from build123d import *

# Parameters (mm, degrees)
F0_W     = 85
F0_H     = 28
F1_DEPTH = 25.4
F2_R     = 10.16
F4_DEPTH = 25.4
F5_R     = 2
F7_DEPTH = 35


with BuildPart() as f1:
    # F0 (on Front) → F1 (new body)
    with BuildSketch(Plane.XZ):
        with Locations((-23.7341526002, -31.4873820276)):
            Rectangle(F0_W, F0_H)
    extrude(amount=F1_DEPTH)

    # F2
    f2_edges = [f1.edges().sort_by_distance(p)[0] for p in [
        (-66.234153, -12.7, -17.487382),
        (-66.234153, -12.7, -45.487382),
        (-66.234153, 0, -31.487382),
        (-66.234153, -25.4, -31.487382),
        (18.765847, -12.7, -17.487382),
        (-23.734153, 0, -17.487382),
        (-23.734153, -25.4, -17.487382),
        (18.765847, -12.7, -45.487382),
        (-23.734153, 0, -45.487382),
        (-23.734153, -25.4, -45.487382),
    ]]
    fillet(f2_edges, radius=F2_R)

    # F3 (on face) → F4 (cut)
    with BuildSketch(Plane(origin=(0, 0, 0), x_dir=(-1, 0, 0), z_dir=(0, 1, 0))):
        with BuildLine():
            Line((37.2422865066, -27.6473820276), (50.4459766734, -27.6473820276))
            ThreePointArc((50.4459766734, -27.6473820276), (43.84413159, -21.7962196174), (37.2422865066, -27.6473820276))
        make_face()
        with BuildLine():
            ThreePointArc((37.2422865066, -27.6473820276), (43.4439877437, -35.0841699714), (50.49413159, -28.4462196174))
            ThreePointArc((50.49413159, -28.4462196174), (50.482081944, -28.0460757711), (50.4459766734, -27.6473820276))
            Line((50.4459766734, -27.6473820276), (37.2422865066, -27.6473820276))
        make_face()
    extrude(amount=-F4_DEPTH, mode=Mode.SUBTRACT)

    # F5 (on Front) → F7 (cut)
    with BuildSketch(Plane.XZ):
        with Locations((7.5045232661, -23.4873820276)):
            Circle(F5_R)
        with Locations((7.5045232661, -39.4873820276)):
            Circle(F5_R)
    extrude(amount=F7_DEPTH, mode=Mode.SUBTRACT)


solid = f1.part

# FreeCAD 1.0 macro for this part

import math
import FreeCAD as App
import Part
import Sketcher

V = App.Vector
Q = App.Units.Quantity


def edges_at(feature, points):
    """Names of the edges that pass closest to the given points."""
    edges = feature.Shape.Edges
    near = lambda p: min(range(len(edges)), key=lambda i: edges[i].distToShape(Part.Vertex(*p))[0])
    return sorted({f"Edge{near(p) + 1}" for p in points})

doc = App.newDocument("Part")
body = doc.addObject("PartDesign::Body", "Body")

# Sketch on XZ plane
sketch1 = body.newObject("Sketcher::SketchObject", "Sketch")
sketch1.AttachmentSupport = (doc.getObject("XZ_Plane"), [""])
sketch1.MapMode = "FlatFace"
sketch1.addGeometry([
    Part.LineSegment(V(-66.234153, -17.487382, 0), V(-66.234153, -45.487382, 0)),
    Part.LineSegment(V(-66.234153, -45.487382, 0), V(18.765847, -45.487382, 0)),
    Part.LineSegment(V(18.765847, -45.487382, 0), V(18.765847, -17.487382, 0)),
    Part.LineSegment(V(18.765847, -17.487382, 0), V(-66.234153, -17.487382, 0)),
], False)
sketch1.addConstraint([
    Sketcher.Constraint("Coincident", 0, 2, 1, 1),
    Sketcher.Constraint("Coincident", 1, 2, 2, 1),
    Sketcher.Constraint("Coincident", 2, 2, 3, 1),
    Sketcher.Constraint("Coincident", 3, 2, 0, 1),
    Sketcher.Constraint("Vertical", 0),
    Sketcher.Constraint("Horizontal", 1),
    Sketcher.Constraint("Vertical", 2),
    Sketcher.Constraint("Horizontal", 3),
    Sketcher.Constraint("DistanceX", 1, 1, 1, 2, Q("85 mm")),
    Sketcher.Constraint("DistanceY", 0, 2, 0, 1, Q("28 mm")),
    Sketcher.Constraint("DistanceX", 0, 2, -1, 1, Q("66.234153 mm")),
    Sketcher.Constraint("DistanceY", 0, 2, -1, 1, Q("45.487382 mm")),
])
pad1 = body.newObject("PartDesign::Pad", "Pad")
pad1.Profile = sketch1
pad1.Length = 25.4
doc.recompute()

fillet = body.newObject("PartDesign::Fillet", "Fillet")
fillet.Base = (pad1, edges_at(pad1, [
    (-66.234, -12.7, -17.487),
    (-66.234, -12.7, -45.487),
    (-66.234, 0, -31.487),
    (-66.234, -25.4, -31.487),
    (18.766, -12.7, -17.487),
    (-23.734, 0, -17.487),
    (-23.734, -25.4, -17.487),
    (18.766, -12.7, -45.487),
    (-23.734, 0, -45.487),
    (-23.734, -25.4, -45.487),
]))
fillet.Radius = 10.16

# Sketch on XZ plane
sketch2 = body.newObject("Sketcher::SketchObject", "Sketch001")
sketch2.AttachmentSupport = (doc.getObject("XZ_Plane"), [""])
sketch2.MapMode = "FlatFace"
sketch2.addGeometry([
    Part.ArcOfCircle(Part.Circle(V(-43.844132, -28.44622, 0), V(0, 0, 1), 6.65), math.radians(6.899372), math.radians(173.100628)),
    Part.ArcOfCircle(Part.Circle(V(-43.844132, -28.44622, 0), V(0, 0, 1), 6.65), math.radians(180), math.radians(366.899372)),
    Part.ArcOfCircle(Part.Circle(V(-43.844132, -28.44622, 0), V(0, 0, 1), 6.65), math.radians(173.100628), math.radians(180)),
], False)
sketch2.addConstraint([
    Sketcher.Constraint("Tangent", 0, 1, 1, 2),
    Sketcher.Constraint("Tangent", 1, 1, 2, 2),
    Sketcher.Constraint("Tangent", 2, 1, 0, 2),
    Sketcher.Constraint("Horizontal", 2, 3, 1, 1),
    Sketcher.Constraint("Horizontal", 0, 1, 2, 1),
    Sketcher.Constraint("Radius", 0, Q("6.65 mm")),
    Sketcher.Constraint("DistanceX", 0, 3, -1, 1, Q("43.844132 mm")),
    Sketcher.Constraint("DistanceY", 0, 3, -1, 1, Q("28.44622 mm")),
    Sketcher.Constraint("DistanceX", 2, 1, 0, 1, Q("13.20369 mm")),
])
pocket1 = body.newObject("PartDesign::Pocket", "Pocket")
pocket1.Profile = sketch2
pocket1.Length = 25.4
pocket1.Reversed = True

# Sketch on XZ plane
sketch3 = body.newObject("Sketcher::SketchObject", "Sketch002")
sketch3.AttachmentSupport = (doc.getObject("XZ_Plane"), [""])
sketch3.MapMode = "FlatFace"
sketch3.addGeometry([
    Part.Circle(V(7.504523, -23.487382, 0), V(0, 0, 1), 2),
    Part.Circle(V(7.504523, -39.487382, 0), V(0, 0, 1), 2),
], False)
sketch3.addConstraint([
    Sketcher.Constraint("Equal", 0, 1),
    Sketcher.Constraint("Vertical", 0, 3, 1, 3),
    Sketcher.Constraint("Diameter", 0, Q("4 mm")),
    Sketcher.Constraint("DistanceY", 1, 3, 0, 3, Q("16 mm")),
    Sketcher.Constraint("DistanceX", -1, 1, 0, 3, Q("7.504523 mm")),
    Sketcher.Constraint("DistanceY", 0, 3, -1, 1, Q("23.487382 mm")),
])
pocket2 = body.newObject("PartDesign::Pocket", "Pocket001")
pocket2.Profile = sketch3
pocket2.Length = 35
pocket2.Reversed = True

doc.recompute()
